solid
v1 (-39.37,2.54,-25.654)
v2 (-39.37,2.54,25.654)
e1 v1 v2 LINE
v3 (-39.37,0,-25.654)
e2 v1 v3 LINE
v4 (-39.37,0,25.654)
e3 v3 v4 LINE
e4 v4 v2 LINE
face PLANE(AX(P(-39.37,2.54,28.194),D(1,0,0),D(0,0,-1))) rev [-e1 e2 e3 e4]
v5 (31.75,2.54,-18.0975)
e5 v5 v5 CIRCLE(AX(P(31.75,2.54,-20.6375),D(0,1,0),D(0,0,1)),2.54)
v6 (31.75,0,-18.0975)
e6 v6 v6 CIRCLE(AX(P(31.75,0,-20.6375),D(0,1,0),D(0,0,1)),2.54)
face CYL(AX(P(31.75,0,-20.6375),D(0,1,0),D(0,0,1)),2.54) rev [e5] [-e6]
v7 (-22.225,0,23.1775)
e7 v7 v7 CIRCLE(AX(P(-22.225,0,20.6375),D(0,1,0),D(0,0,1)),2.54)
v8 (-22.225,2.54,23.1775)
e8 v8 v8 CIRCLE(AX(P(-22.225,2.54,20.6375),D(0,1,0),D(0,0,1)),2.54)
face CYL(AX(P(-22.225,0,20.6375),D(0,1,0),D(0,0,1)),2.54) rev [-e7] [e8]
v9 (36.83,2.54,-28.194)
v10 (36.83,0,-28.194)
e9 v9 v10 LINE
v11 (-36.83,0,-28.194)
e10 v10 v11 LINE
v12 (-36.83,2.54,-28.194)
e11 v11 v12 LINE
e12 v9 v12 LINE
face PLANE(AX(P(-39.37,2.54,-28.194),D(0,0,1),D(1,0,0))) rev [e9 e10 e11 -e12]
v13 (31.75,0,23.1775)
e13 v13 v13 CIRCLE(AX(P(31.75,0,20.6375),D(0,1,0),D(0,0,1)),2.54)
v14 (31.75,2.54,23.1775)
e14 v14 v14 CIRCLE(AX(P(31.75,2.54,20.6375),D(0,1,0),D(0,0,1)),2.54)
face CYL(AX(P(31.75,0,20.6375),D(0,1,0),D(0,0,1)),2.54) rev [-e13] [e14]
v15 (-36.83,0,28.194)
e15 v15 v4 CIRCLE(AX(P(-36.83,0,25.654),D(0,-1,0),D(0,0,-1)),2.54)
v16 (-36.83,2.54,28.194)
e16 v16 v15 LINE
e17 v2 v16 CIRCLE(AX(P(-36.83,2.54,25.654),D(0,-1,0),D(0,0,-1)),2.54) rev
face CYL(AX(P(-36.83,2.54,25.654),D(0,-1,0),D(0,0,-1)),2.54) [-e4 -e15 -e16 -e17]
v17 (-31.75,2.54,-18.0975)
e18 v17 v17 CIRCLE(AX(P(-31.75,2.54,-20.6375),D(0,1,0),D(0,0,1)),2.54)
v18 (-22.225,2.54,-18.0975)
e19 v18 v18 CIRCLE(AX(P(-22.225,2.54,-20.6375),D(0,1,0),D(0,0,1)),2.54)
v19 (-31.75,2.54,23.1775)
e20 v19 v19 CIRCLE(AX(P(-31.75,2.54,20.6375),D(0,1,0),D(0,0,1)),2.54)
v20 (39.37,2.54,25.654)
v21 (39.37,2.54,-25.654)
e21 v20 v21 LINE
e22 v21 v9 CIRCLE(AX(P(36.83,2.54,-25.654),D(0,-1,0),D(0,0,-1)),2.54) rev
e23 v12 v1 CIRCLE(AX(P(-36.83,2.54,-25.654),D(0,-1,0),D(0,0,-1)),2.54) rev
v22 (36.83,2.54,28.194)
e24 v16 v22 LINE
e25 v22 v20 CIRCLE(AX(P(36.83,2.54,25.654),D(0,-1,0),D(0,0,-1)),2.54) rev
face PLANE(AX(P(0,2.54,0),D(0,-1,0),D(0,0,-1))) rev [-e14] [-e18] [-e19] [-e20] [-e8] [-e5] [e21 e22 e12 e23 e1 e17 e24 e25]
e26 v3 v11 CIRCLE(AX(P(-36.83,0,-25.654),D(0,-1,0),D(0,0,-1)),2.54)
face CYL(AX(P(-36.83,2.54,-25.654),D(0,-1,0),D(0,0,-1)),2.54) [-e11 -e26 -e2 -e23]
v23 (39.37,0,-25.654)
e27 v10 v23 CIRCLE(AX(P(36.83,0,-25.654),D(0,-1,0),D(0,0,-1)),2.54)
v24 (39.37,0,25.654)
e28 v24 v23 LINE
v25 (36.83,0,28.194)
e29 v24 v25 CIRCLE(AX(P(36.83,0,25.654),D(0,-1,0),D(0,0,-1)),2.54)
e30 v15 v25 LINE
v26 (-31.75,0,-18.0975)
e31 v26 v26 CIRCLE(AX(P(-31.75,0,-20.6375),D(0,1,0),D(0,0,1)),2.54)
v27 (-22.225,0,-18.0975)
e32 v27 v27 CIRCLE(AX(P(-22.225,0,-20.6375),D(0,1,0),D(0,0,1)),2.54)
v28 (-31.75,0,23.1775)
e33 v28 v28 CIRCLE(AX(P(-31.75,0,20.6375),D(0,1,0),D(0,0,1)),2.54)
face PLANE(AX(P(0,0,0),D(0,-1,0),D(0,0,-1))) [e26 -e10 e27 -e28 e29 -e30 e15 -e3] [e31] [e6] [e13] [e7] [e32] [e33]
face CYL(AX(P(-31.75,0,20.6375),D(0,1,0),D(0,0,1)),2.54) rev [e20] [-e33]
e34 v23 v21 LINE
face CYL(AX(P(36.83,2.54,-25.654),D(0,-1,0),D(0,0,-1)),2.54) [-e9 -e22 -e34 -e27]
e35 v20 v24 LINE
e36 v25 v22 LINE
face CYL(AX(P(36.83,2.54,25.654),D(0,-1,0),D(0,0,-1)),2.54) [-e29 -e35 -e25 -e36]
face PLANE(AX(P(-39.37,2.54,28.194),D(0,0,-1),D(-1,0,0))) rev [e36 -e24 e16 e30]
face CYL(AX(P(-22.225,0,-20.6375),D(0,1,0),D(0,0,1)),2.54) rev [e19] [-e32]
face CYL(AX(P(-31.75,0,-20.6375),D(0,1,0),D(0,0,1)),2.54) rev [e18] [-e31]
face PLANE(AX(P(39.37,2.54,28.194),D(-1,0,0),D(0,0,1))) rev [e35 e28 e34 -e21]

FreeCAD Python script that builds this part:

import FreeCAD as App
import Part
import Sketcher
Q = App.Units.Quantity


def edges_at(feature, points):
    """Names of the edges that pass closest to the given points."""
    edges = feature.Shape.Edges
    near = lambda p: min(range(len(edges)), key=lambda i: edges[i].distToShape(Part.Vertex(*p))[0])
    return sorted({f"Edge{near(p) + 1}" for p in points})


def add_polygon(sketch, points):
    """Adds a closed chain of lines whose ends are joined by coincident constraints."""
    first, n = sketch.GeometryCount, len(points)
    for a, b in zip(points, points[1:] + points[:1]):
        sketch.addGeometry(Part.LineSegment(App.Vector(*a, 0), App.Vector(*b, 0)), False)
    for i in range(n):
        sketch.addConstraint(Sketcher.Constraint("Coincident", first + i, 2, first + (i + 1) % n, 1))

doc = App.newDocument("Part")
body = doc.addObject("PartDesign::Body", "Body")

sketch1 = body.newObject("Sketcher::SketchObject", "Sketch")
sketch1.AttachmentSupport = (doc.getObject("XZ_Plane"), [""])
sketch1.MapMode = "FlatFace"
add_polygon(sketch1, [(-39, -28), (-39, 28), (39, 28), (39, -28)])
sketch1.addConstraint([
    Sketcher.Constraint("Vertical", 0),
    Sketcher.Constraint("Horizontal", 1),
    Sketcher.Constraint("Vertical", 2),
    Sketcher.Constraint("Horizontal", 3),
    Sketcher.Constraint("Symmetric", 0, 2, 2, 2, -1, 1),
    Sketcher.Constraint("DistanceX", 1, 1, 1, 2, Q("3.1 in")),
    Sketcher.Constraint("DistanceY", 0, 1, 0, 2, Q("2.22 in")),
])
pad1 = body.newObject("PartDesign::Pad", "Pad")
pad1.Profile = sketch1
pad1.Length = Q("0.1 in")
pad1.Reversed = True
doc.recompute()

fillet = body.newObject("PartDesign::Fillet", "Fillet")
fillet.Base = (pad1, edges_at(pad1, [
    (39.37, 1.27, 28.194),
    (-39.37, 1.27, 28.194),
    (-39.37, 1.27, -28.194),
    (39.37, 1.27, -28.194),
]))
fillet.Radius = Q("0.1 in")

sketch2 = body.newObject("Sketcher::SketchObject", "Sketch001")
sketch2.AttachmentSupport = (doc.getObject("XZ_Plane"), [""])
sketch2.MapMode = "FlatFace"
sketch2.AttachmentOffset = App.Placement(App.Vector(0, 0, -0.1 * 25.4), App.Rotation())
sketch2.addGeometry([
    Part.Circle(App.Vector(31.8, -20.6, 0), App.Vector(0, 0, 1), 2.5),
    Part.Circle(App.Vector(31.8, 20.6, 0), App.Vector(0, 0, 1), 2.5),
    Part.Circle(App.Vector(-31.8, 20.6, 0), App.Vector(0, 0, 1), 2.5),
    Part.Circle(App.Vector(-31.8, -20.6, 0), App.Vector(0, 0, 1), 2.5),
    Part.Circle(App.Vector(-22.2, 20.6, 0), App.Vector(0, 0, 1), 2.5),
    Part.Circle(App.Vector(-22.2, -20.6, 0), App.Vector(0, 0, 1), 2.5),
], False)
sketch2.addConstraint([
    Sketcher.Constraint("Equal", 0, 1),
    Sketcher.Constraint("Equal", 1, 2),
    Sketcher.Constraint("Equal", 2, 3),
    Sketcher.Constraint("Equal", 3, 4),
    Sketcher.Constraint("Equal", 4, 5),
    Sketcher.Constraint("Symmetric", 0, 3, 2, 3, -1, 1),
    Sketcher.Constraint("Symmetric", 1, 3, 3, 3, -1, 1),
    Sketcher.Constraint("Symmetric", 1, 3, 2, 3, -2),
    Sketcher.Constraint("Symmetric", 4, 3, 5, 3, -1),
    Sketcher.Constraint("Horizontal", 2, 3, 4, 3),
    Sketcher.Constraint("Diameter", 0, Q("0.2 in")),
    Sketcher.Constraint("DistanceX", 2, 3, 1, 3, Q("2.5 in")),
    Sketcher.Constraint("DistanceY", 0, 3, -1, 1, Q("0.8125 in")),
    Sketcher.Constraint("DistanceX", 4, 3, -1, 1, Q("0.875 in")),
])
pocket1 = body.newObject("PartDesign::Pocket", "Pocket")
pocket1.Profile = sketch2
pocket1.Length = Q("0.1 in")
pocket1.Reversed = True

doc.recompute()
